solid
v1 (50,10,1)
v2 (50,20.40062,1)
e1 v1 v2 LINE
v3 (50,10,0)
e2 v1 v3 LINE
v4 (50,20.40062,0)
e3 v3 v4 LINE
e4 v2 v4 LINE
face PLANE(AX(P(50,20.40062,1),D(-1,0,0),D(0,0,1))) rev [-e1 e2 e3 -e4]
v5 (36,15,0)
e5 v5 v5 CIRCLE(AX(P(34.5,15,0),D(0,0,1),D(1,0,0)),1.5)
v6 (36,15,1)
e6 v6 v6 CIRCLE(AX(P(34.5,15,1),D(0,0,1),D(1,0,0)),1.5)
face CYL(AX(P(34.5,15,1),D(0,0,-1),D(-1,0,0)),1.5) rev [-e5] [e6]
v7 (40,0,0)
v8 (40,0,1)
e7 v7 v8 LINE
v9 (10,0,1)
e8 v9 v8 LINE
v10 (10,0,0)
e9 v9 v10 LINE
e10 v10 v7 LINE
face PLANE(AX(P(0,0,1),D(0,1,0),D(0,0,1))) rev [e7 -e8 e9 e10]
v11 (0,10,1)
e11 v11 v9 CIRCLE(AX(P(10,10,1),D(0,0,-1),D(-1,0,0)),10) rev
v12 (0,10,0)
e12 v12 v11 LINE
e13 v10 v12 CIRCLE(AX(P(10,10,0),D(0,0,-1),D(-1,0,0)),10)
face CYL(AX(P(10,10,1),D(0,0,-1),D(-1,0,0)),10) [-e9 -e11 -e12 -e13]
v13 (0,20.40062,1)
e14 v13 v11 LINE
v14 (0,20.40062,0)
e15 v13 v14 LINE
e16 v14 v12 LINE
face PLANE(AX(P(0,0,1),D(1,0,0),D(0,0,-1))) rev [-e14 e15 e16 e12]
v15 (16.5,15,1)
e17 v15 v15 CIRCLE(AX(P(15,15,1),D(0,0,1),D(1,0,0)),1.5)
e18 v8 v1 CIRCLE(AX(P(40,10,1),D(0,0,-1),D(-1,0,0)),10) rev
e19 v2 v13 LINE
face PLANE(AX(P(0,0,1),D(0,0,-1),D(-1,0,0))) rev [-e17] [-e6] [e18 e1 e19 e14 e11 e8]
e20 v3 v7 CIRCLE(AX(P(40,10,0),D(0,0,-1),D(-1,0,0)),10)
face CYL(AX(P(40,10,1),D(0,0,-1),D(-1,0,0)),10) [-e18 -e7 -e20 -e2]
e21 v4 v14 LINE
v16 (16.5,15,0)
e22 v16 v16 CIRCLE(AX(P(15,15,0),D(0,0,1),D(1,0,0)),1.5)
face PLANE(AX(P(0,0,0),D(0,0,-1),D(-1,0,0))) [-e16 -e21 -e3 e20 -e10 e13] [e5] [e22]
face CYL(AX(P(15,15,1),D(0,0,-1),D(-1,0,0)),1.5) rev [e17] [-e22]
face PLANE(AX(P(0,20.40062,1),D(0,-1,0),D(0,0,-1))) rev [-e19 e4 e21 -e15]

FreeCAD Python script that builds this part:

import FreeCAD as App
import Part
import Sketcher


def edges_at(feature, points):
    """Names of the edges that pass closest to the given points."""
    edges = feature.Shape.Edges
    near = lambda p: min(range(len(edges)), key=lambda i: edges[i].distToShape(Part.Vertex(*p))[0])
    return sorted({f"Edge{near(p) + 1}" for p in points})

doc = App.newDocument("Part")
params = doc.addObject("Spreadsheet::Sheet", "Params")
for row, (alias, value) in enumerate([
    ("sketch1_diameter", "3 mm"),
    ("sketch1_width", "50 mm"),
    ("pad1_length", "1 mm"),
    ("fillet_radius", "10 mm"),
    ("fillet2_radius", "10 mm"),
], start=1):
    params.set(f"A{row}", alias)
    params.set(f"B{row}", "=" + value)
    params.setAlias(f"B{row}", alias)

body = doc.addObject("PartDesign::Body", "Body")

# Sketch on XY plane
sketch1 = body.newObject("Sketcher::SketchObject", "Sketch")
sketch1.AttachmentSupport = (doc.getObject("XY_Plane"), [""])
sketch1.MapMode = "FlatFace"
sketch1.addGeometry([
    Part.LineSegment(App.Vector(0, 20.4, 0), App.Vector(0, 0, 0)),  # 0
    Part.LineSegment(App.Vector(0, 0, 0), App.Vector(50, 0, 0)),  # 1
    Part.LineSegment(App.Vector(50, 0, 0), App.Vector(50, 20.4, 0)),  # 2
    Part.LineSegment(App.Vector(50, 20.4, 0), App.Vector(0, 20.4, 0)),  # 3
    Part.Circle(App.Vector(15, 15, 0), App.Vector(0, 0, 1), 1.5),  # 4
    Part.Circle(App.Vector(34.5, 15, 0), App.Vector(0, 0, 1), 1.5),  # 5
], False)
sketch1.addConstraint([
    Sketcher.Constraint("Coincident", 0, 2, 1, 1),
    Sketcher.Constraint("Coincident", 1, 2, 2, 1),
    Sketcher.Constraint("Coincident", 2, 2, 3, 1),
    Sketcher.Constraint("Coincident", 3, 2, 0, 1),
    Sketcher.Constraint("Vertical", 0),
    Sketcher.Constraint("Horizontal", 1),
    Sketcher.Constraint("Vertical", 2),
    Sketcher.Constraint("Horizontal", 3),
    Sketcher.Constraint("Coincident", 0, 2, -1, 1),
    Sketcher.Constraint("Equal", 4, 5),
    Sketcher.Constraint("Horizontal", 4, 3, 5, 3),
    Sketcher.Constraint("Diameter", 4, 3.0),
    Sketcher.Constraint("DistanceX", 1, 1, 1, 2, 50.0),
    Sketcher.Constraint("DistanceX", -1, 1, 4, 3, 15.0),
    Sketcher.Constraint("DistanceY", -1, 1, 4, 3, 15.0),
    Sketcher.Constraint("DistanceX", -1, 1, 5, 3, 34.5),
    Sketcher.Constraint("DistanceY", 0, 2, 0, 1, 20.40062),
])
sketch1.setExpression("Constraints[11]", "Params.sketch1_diameter")
sketch1.setExpression("Constraints[12]", "Params.sketch1_width")
pad1 = body.newObject("PartDesign::Pad", "Pad")
pad1.Profile = sketch1
pad1.setExpression("Length", "Params.pad1_length")
doc.recompute()

fillet = body.newObject("PartDesign::Fillet", "Fillet")
fillet.Base = (pad1, edges_at(pad1, [(0, 0, 0.5)]))
fillet.setExpression("Radius", "Params.fillet_radius")
doc.recompute()

fillet2 = body.newObject("PartDesign::Fillet", "Fillet001")
fillet2.Base = (fillet, edges_at(fillet, [(50, 0, 0.5)]))
fillet2.setExpression("Radius", "Params.fillet2_radius")

doc.recompute()
